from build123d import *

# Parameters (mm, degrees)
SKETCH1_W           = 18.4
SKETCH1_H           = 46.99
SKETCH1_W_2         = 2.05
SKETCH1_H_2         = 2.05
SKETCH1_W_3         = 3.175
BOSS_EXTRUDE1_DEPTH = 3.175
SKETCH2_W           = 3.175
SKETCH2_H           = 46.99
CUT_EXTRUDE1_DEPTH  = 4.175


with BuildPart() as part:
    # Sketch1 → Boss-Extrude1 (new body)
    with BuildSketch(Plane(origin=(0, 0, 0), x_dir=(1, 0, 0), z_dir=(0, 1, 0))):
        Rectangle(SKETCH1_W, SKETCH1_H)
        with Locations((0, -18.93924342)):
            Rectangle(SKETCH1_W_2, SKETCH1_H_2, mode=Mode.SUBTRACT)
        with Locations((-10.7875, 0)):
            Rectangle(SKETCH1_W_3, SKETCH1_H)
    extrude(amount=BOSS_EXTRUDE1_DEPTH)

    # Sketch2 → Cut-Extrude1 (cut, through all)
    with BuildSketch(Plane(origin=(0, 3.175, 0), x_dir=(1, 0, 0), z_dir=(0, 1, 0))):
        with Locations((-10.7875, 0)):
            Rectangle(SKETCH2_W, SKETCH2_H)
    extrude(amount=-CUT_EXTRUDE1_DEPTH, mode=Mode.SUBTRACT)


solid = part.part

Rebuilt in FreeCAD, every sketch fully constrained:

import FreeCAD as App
import Part
import Sketcher

V = App.Vector
Q = App.Units.Quantity


def add_polygon(sketch, points):
    """Adds a closed chain of lines whose ends are joined by coincident constraints."""
    first, n = sketch.GeometryCount, len(points)
    for a, b in zip(points, points[1:] + points[:1]):
        sketch.addGeometry(Part.LineSegment(App.Vector(*a, 0), App.Vector(*b, 0)), False)
    for i in range(n):
        sketch.addConstraint(Sketcher.Constraint("Coincident", first + i, 2, first + (i + 1) % n, 1))

doc = App.newDocument("Part")
params = doc.addObject("Spreadsheet::Sheet", "Params")
for row, (alias, value) in enumerate([
    ("sketch1_height", "1.85 in"),
    ("pad1_length", "0.125 in"),
    ("sketch2_height", "1.85 in"),
    ("sketch2_width", "0.125 in"),
], start=1):
    params.set(f"A{row}", alias)
    params.set(f"B{row}", "=" + value)
    params.setAlias(f"B{row}", alias)

body = doc.addObject("PartDesign::Body", "Body")

# Sketch on XZ plane
sketch1 = body.newObject("Sketcher::SketchObject", "Sketch")
sketch1.AttachmentSupport = (doc.getObject("XZ_Plane"), [""])
sketch1.MapMode = "FlatFace"
add_polygon(sketch1, [(9.2, 23.5), (9.2, -23.5), (-12.4, -23.5), (-12.4, 23.5)])  # lines 0-3
add_polygon(sketch1, [(1, 20), (-1, 20), (-1, 17.9), (1, 17.9)])  # lines 4-7
sketch1.addConstraint([
    Sketcher.Constraint("Vertical", 0),
    Sketcher.Constraint("Horizontal", 1),
    Sketcher.Constraint("Vertical", 2),
    Sketcher.Constraint("Horizontal", 3),
    Sketcher.Constraint("Horizontal", 4),
    Sketcher.Constraint("Vertical", 5),
    Sketcher.Constraint("Horizontal", 6),
    Sketcher.Constraint("Vertical", 7),
    Sketcher.Constraint("Equal", 6, 5),
    Sketcher.Constraint("DistanceY", 0, 2, 0, 1, Q("1.85 in")),
    Sketcher.Constraint("DistanceY", 0, 2, -1, 1, Q("0.925 in")),
    Sketcher.Constraint("DistanceX", 1, 2, 1, 1, 21.575),
    Sketcher.Constraint("DistanceX", 4, 2, 4, 1, 2.05),
    Sketcher.Constraint("DistanceX", -1, 1, 0, 2, 9.2),
    Sketcher.Constraint("DistanceX", 4, 2, -1, 1, 1.025),
    Sketcher.Constraint("DistanceY", -1, 1, 4, 2, 19.964243),
])
sketch1.setExpression("Constraints[17]", "Params.sketch1_height")
pad1 = body.newObject("PartDesign::Pad", "Pad")
pad1.Profile = sketch1
pad1.setExpression("Length", "Params.pad1_length")
pad1.Reversed = True

# Sketch on XZ plane
sketch2 = body.newObject("Sketcher::SketchObject", "Sketch001")
sketch2.AttachmentSupport = (doc.getObject("XZ_Plane"), [""])
sketch2.MapMode = "FlatFace"
sketch2.AttachmentOffset = App.Placement(V(0, 0, -0.125 * 25.4), App.Rotation())
add_polygon(sketch2, [(-12.4, -23.5), (-12.4, 23.5), (-9.2, 23.5), (-9.2, -23.5)])  # lines 0-3
sketch2.addConstraint([
    Sketcher.Constraint("Vertical", 0),
    Sketcher.Constraint("Horizontal", 1),
    Sketcher.Constraint("Vertical", 2),
    Sketcher.Constraint("Horizontal", 3),
    Sketcher.Constraint("DistanceY", 0, 1, 0, 2, Q("1.85 in")),
    Sketcher.Constraint("DistanceX", 1, 1, 1, 2, Q("0.125 in")),
    Sketcher.Constraint("DistanceY", -1, 1, 0, 2, Q("0.925 in")),
    Sketcher.Constraint("DistanceX", 0, 2, -1, 1, 12.375),
])
sketch2.setExpression("Constraints[8]", "Params.sketch2_height")
sketch2.setExpression("Constraints[9]", "Params.sketch2_width")
pocket1 = body.newObject("PartDesign::Pocket", "Pocket")
pocket1.Profile = sketch2
pocket1.Type = "ThroughAll"
pocket1.Reversed = True

doc.recompute()
